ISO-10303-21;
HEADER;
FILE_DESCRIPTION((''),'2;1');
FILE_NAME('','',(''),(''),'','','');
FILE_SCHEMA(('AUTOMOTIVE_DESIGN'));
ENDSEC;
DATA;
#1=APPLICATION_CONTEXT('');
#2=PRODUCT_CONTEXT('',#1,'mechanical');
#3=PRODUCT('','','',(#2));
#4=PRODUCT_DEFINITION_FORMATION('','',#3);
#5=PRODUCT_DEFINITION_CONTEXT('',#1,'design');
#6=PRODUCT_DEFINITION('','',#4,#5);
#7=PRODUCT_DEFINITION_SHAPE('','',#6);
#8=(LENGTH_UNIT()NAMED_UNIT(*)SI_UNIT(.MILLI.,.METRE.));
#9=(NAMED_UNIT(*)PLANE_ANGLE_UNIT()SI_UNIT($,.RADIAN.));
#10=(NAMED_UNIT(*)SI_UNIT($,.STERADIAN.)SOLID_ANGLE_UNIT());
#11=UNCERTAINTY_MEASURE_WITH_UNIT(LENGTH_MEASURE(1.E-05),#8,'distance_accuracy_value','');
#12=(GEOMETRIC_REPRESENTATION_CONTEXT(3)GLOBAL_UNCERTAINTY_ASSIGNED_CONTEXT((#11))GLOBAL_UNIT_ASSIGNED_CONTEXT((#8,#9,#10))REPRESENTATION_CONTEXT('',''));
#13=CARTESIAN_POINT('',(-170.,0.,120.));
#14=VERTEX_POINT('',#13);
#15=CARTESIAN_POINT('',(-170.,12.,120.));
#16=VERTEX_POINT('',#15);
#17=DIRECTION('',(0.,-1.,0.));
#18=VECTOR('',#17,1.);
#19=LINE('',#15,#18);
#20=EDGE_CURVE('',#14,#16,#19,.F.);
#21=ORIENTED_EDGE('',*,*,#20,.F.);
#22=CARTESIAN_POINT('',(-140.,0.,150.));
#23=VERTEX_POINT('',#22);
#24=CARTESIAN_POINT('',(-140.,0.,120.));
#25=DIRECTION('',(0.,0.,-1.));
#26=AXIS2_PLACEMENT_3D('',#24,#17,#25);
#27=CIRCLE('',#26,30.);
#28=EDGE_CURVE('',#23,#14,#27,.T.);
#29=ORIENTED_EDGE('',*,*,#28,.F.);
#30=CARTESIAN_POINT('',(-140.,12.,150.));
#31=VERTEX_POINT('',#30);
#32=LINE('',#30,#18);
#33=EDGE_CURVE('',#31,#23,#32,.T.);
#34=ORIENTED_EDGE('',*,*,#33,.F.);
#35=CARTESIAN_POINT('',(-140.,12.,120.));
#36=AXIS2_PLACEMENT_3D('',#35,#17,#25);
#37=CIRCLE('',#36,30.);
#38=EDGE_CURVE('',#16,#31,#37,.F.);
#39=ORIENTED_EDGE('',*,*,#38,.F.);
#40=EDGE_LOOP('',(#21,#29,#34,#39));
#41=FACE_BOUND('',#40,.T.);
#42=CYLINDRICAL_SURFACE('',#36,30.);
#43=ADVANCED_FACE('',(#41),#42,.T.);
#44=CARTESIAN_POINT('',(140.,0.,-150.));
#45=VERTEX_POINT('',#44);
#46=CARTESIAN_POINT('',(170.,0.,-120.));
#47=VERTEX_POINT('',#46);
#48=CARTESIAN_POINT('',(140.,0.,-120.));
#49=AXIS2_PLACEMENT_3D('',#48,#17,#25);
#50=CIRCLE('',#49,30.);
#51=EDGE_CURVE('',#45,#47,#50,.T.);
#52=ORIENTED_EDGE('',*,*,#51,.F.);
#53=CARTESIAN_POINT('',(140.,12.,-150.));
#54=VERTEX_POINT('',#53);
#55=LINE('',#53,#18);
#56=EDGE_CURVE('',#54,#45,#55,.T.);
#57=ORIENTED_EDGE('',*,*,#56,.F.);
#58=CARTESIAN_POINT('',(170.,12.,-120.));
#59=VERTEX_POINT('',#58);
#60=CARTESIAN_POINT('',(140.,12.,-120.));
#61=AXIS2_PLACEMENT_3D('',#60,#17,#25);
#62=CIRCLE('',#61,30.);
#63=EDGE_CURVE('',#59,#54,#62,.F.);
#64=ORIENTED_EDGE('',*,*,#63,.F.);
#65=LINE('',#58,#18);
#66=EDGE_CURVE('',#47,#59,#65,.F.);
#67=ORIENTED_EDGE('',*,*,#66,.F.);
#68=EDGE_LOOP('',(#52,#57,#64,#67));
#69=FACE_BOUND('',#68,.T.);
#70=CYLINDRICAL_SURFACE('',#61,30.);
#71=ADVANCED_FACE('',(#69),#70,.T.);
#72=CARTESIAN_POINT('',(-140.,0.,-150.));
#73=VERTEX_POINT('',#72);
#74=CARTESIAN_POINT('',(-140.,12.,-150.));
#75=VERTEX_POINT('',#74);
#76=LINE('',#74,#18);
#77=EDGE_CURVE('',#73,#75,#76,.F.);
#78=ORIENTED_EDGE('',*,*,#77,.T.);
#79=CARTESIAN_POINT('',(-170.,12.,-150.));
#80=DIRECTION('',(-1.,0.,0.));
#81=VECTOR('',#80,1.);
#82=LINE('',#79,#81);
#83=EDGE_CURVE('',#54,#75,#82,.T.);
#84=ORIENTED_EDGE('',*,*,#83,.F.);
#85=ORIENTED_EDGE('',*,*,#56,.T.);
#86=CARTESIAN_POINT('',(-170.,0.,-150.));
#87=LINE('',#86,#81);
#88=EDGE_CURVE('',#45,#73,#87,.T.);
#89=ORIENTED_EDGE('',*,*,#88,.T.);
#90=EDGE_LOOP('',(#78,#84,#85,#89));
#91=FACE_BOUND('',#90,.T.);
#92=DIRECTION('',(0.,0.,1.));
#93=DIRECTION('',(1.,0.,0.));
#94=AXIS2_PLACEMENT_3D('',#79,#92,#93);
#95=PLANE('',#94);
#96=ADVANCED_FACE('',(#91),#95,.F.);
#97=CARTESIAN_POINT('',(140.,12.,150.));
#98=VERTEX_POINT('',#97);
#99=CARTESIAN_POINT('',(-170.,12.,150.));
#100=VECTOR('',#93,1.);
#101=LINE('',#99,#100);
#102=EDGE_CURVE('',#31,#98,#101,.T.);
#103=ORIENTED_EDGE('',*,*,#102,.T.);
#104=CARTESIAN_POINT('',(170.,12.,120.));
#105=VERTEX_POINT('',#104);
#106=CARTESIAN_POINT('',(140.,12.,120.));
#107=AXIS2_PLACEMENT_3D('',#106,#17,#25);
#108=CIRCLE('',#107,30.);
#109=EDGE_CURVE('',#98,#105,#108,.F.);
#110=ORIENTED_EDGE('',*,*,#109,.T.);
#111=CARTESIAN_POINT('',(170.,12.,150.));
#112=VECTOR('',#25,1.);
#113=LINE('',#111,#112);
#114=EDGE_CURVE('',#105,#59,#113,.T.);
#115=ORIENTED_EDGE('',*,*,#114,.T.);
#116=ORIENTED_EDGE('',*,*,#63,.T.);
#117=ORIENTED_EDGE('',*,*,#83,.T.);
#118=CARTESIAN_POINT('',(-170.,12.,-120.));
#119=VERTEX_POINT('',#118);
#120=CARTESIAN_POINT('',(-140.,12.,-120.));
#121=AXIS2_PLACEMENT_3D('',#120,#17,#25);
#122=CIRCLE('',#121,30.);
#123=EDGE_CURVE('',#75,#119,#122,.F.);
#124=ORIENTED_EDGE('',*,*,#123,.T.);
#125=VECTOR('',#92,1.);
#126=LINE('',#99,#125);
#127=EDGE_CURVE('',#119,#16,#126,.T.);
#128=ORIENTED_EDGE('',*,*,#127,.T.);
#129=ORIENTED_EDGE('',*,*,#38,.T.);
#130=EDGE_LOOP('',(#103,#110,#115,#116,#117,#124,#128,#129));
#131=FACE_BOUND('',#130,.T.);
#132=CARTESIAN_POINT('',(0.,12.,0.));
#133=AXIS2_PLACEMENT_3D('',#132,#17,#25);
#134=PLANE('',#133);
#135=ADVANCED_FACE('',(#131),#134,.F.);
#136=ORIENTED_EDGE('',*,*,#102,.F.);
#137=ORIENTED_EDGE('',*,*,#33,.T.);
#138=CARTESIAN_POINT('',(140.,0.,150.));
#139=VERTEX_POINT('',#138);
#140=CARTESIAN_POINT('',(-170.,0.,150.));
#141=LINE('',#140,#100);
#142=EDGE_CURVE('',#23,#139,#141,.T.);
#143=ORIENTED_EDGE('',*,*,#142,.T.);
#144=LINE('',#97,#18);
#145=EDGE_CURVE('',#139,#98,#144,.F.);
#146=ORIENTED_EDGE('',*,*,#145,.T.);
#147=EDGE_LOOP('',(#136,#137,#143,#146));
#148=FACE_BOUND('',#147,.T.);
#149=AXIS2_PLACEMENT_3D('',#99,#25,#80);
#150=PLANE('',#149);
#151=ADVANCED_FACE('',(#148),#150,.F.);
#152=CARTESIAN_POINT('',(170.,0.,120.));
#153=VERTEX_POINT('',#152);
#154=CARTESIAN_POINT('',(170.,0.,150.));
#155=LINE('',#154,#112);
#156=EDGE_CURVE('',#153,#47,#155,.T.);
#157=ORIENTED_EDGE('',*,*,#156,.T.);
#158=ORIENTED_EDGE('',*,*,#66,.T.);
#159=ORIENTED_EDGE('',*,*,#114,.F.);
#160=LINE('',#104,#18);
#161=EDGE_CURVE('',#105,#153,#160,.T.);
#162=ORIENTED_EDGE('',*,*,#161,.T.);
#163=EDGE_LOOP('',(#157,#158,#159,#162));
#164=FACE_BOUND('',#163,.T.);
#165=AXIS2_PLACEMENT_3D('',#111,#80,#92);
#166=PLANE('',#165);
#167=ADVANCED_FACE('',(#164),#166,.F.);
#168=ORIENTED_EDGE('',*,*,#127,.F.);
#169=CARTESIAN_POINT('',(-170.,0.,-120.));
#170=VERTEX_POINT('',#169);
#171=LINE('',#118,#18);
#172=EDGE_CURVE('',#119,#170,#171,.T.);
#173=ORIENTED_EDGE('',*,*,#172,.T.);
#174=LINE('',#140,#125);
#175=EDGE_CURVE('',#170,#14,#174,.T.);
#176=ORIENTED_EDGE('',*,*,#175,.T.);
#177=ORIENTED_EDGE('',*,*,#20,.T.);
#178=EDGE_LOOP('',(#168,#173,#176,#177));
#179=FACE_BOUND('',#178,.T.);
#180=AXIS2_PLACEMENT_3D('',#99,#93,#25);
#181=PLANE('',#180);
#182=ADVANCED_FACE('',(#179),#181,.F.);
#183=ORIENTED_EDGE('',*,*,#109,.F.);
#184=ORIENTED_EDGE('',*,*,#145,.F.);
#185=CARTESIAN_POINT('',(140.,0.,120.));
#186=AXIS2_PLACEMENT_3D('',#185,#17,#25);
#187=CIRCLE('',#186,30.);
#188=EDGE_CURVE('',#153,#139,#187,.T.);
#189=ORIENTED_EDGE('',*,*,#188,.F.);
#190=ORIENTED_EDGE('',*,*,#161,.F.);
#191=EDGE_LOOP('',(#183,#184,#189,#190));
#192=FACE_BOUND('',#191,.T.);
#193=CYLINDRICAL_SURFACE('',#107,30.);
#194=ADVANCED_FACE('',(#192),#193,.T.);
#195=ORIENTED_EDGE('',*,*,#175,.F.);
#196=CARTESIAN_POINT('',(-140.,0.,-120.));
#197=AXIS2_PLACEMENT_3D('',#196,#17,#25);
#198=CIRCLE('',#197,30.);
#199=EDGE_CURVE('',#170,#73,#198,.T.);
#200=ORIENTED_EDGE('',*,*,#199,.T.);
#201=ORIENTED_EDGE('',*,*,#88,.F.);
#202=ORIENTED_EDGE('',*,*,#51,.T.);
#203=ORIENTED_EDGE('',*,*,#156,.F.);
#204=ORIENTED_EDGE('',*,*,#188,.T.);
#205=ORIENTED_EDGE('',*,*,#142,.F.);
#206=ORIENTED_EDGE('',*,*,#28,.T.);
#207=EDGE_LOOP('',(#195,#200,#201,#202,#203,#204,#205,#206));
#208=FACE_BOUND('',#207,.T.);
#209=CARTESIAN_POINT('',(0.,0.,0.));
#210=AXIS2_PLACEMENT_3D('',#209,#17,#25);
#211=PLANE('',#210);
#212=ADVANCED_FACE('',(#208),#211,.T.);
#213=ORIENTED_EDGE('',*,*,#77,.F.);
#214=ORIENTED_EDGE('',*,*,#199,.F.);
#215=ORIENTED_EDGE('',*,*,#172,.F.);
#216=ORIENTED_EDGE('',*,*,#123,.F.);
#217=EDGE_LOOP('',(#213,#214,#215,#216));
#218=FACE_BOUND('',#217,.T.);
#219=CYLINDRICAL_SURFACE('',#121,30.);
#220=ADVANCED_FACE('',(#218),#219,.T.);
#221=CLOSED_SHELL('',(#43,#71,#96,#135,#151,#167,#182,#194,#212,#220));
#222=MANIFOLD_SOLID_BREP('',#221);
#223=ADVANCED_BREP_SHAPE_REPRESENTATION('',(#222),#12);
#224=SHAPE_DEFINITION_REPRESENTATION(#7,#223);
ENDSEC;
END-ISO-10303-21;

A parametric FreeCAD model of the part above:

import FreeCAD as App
import Part
import Sketcher

V = App.Vector


def edges_at(feature, points):
    """Names of the edges that pass closest to the given points."""
    edges = feature.Shape.Edges
    near = lambda p: min(range(len(edges)), key=lambda i: edges[i].distToShape(Part.Vertex(*p))[0])
    return sorted({f"Edge{near(p) + 1}" for p in points})

doc = App.newDocument("Part")
params = doc.addObject("Spreadsheet::Sheet", "Params")
for row, (alias, value) in enumerate([
    ("sketch1_width", "340 mm"),
    ("sketch1_height", "300 mm"),
    ("pad1_length", "12 mm"),
    ("fillet_radius", "30 mm"),
], start=1):
    params.set(f"A{row}", alias)
    params.set(f"B{row}", "=" + value)
    params.setAlias(f"B{row}", alias)

body = doc.addObject("PartDesign::Body", "Body")

# Sketch on XZ plane
sketch1 = body.newObject("Sketcher::SketchObject", "Sketch")
sketch1.AttachmentSupport = (doc.getObject("XZ_Plane"), [""])
sketch1.MapMode = "FlatFace"
sketch1.addGeometry([
    Part.LineSegment(V(-170, -150, 0), V(-170, 150, 0)),
    Part.LineSegment(V(-170, 150, 0), V(170, 150, 0)),
    Part.LineSegment(V(170, 150, 0), V(170, -150, 0)),
    Part.LineSegment(V(170, -150, 0), V(-170, -150, 0)),
], False)
sketch1.addConstraint([
    Sketcher.Constraint("Coincident", 0, 2, 1, 1),
    Sketcher.Constraint("Coincident", 1, 2, 2, 1),
    Sketcher.Constraint("Coincident", 2, 2, 3, 1),
    Sketcher.Constraint("Coincident", 3, 2, 0, 1),
    Sketcher.Constraint("Vertical", 0),
    Sketcher.Constraint("Horizontal", 1),
    Sketcher.Constraint("Vertical", 2),
    Sketcher.Constraint("Horizontal", 3),
    Sketcher.Constraint("Symmetric", 0, 2, 2, 2, -1, 1),
    Sketcher.Constraint("DistanceX", 1, 1, 1, 2, 340.0),
    Sketcher.Constraint("DistanceY", 0, 1, 0, 2, 300.0),
])
sketch1.setExpression("Constraints[9]", "Params.sketch1_width")
sketch1.setExpression("Constraints[10]", "Params.sketch1_height")
pad1 = body.newObject("PartDesign::Pad", "Pad")
pad1.Profile = sketch1
pad1.setExpression("Length", "Params.pad1_length")
pad1.Reversed = True
doc.recompute()

fillet = body.newObject("PartDesign::Fillet", "Fillet")
fillet.Base = (pad1, edges_at(pad1, [
    (170, 6, 150),
    (-170, 6, 150),
    (-170, 6, -150),
    (170, 6, -150),
]))
fillet.setExpression("Radius", "Params.fillet_radius")

doc.recompute()
